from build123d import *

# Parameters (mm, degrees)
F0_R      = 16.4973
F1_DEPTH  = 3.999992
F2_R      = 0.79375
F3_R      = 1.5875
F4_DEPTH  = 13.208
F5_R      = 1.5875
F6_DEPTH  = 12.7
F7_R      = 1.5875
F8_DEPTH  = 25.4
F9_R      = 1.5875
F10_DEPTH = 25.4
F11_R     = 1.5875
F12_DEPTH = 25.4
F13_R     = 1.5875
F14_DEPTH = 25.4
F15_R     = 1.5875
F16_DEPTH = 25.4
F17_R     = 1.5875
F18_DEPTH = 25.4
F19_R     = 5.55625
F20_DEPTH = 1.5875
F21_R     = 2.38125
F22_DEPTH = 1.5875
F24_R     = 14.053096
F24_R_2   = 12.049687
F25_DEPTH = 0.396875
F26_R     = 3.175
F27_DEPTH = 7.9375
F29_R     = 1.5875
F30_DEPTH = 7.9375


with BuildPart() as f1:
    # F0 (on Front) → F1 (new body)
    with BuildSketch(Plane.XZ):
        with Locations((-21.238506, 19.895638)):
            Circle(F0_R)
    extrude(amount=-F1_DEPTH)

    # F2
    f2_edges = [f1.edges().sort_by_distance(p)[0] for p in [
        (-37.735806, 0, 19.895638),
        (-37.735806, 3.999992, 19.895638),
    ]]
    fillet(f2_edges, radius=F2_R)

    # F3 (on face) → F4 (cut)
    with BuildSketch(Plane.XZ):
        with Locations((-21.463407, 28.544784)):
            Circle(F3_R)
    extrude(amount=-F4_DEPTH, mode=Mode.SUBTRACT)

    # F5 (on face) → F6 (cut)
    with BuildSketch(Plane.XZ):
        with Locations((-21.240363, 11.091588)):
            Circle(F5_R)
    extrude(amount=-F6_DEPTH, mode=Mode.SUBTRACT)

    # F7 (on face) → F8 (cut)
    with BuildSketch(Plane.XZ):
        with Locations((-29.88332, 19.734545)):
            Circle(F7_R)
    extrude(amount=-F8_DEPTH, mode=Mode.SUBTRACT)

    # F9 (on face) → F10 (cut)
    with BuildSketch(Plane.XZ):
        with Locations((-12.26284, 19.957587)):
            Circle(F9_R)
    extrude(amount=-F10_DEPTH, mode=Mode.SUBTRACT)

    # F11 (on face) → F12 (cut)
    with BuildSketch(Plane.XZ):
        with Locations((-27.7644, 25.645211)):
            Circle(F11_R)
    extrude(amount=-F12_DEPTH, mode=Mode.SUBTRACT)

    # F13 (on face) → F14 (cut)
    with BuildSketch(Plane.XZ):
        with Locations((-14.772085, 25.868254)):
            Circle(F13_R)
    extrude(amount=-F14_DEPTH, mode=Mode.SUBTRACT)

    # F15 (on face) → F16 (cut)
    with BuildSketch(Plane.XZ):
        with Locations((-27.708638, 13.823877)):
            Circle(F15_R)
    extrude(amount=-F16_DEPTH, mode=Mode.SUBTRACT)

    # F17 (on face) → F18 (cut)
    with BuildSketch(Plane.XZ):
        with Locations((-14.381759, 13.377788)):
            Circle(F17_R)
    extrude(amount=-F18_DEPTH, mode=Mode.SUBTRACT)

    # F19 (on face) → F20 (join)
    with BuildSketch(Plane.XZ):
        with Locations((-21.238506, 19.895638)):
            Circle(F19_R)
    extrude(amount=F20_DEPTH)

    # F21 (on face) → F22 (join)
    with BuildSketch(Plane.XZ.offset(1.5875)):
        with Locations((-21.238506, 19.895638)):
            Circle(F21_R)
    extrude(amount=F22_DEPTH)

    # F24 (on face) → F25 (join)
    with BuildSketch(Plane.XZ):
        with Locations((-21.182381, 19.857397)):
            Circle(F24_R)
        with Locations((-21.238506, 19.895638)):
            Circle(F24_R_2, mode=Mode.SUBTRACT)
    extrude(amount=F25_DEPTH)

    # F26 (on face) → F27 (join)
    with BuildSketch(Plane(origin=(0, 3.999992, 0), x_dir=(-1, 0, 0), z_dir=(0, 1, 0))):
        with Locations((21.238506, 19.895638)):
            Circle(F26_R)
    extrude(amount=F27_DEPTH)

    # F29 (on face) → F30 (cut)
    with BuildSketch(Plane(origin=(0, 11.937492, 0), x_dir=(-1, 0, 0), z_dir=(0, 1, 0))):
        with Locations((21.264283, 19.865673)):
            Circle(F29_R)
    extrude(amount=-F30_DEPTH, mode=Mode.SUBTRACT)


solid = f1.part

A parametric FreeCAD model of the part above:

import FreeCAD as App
import Part
import Sketcher
from FreeCAD import Vector
Q = App.Units.Quantity


def edges_at(feature, points):
    """Names of the edges that pass closest to the given points."""
    edges = feature.Shape.Edges
    near = lambda p: min(range(len(edges)), key=lambda i: edges[i].distToShape(Part.Vertex(*p))[0])
    return sorted({f"Edge{near(p) + 1}" for p in points})

doc = App.newDocument("Part")
params = doc.addObject("Spreadsheet::Sheet", "Params")
for row, (alias, value) in enumerate([
    ("sketch1_diameter", "1.299 in"),
    ("pad1_length", "3.999992 mm"),
    ("fillet_radius", "0.03125 in"),
    ("sketch2_diameter", "0.125 in"),
    ("pocket1_length", "0.52 in"),
    ("sketch3_diameter", "0.125 in"),
    ("pocket2_length", "0.5 in"),
    ("sketch4_diameter", "0.125 in"),
    ("pocket3_length", "1 in"),
    ("sketch5_diameter", "0.125 in"),
    ("pocket4_length", "1 in"),
    ("sketch6_diameter", "0.125 in"),
    ("pocket5_length", "1 in"),
    ("sketch7_diameter", "0.125 in"),
    ("pocket6_length", "1 in"),
    ("sketch8_diameter", "0.125 in"),
    ("pocket7_length", "1 in"),
    ("sketch9_diameter", "0.125 in"),
    ("pocket8_length", "1 in"),
    ("sketch10_diameter", "0.4375 in"),
    ("pad2_length", "0.0625 in"),
    ("sketch11_diameter", "0.1875 in"),
    ("pad3_length", "0.0625 in"),
    ("pad4_length", "0.015625 in"),
    ("sketch13_diameter", "0.25 in"),
    ("pad5_length", "0.3125 in"),
    ("sketch14_diameter", "0.125 in"),
    ("pocket9_length", "0.3125 in"),
], start=1):
    params.set(f"A{row}", alias)
    params.set(f"B{row}", "=" + value)
    params.setAlias(f"B{row}", alias)

body = doc.addObject("PartDesign::Body", "Body")

# Sketch on XZ plane
sketch1 = body.newObject("Sketcher::SketchObject", "Sketch")
sketch1.AttachmentSupport = (doc.getObject("XZ_Plane"), [""])
sketch1.MapMode = "FlatFace"
sketch1.addGeometry(Part.Circle(Vector(-21, 20, 0), Vector(0, 0, 1), 16), False)
sketch1.addConstraint([
    Sketcher.Constraint("Diameter", 0, Q("1.299 in")),
    Sketcher.Constraint("DistanceY", -1, 1, 0, 3, 19.895638),
    Sketcher.Constraint("DistanceX", 0, 3, -1, 1, 21.238506),
])
sketch1.setExpression("Constraints[0]", "Params.sketch1_diameter")
pad1 = body.newObject("PartDesign::Pad", "Pad")
pad1.Profile = sketch1
pad1.setExpression("Length", "Params.pad1_length")
pad1.Reversed = True
doc.recompute()

fillet = body.newObject("PartDesign::Fillet", "Fillet")
fillet.Base = (pad1, edges_at(pad1, [(-37.736, 0, 19.896), (-37.736, 4, 19.896)]))
fillet.setExpression("Radius", "Params.fillet_radius")

# Sketch on XZ plane
sketch2 = body.newObject("Sketcher::SketchObject", "Sketch001")
sketch2.AttachmentSupport = (doc.getObject("XZ_Plane"), [""])
sketch2.MapMode = "FlatFace"
sketch2.addGeometry(Part.Circle(Vector(-21.5, 28.5, 0), Vector(0, 0, 1), 1.6), False)
sketch2.addConstraint([
    Sketcher.Constraint("Diameter", 0, Q("0.125 in")),
    Sketcher.Constraint("DistanceX", 0, 3, -1, 1, 21.463407),
    Sketcher.Constraint("DistanceY", -1, 1, 0, 3, 28.544784),
])
sketch2.setExpression("Constraints[0]", "Params.sketch2_diameter")
pocket1 = body.newObject("PartDesign::Pocket", "Pocket")
pocket1.Profile = sketch2
pocket1.setExpression("Length", "Params.pocket1_length")

# Sketch on XZ plane
sketch3 = body.newObject("Sketcher::SketchObject", "Sketch002")
sketch3.AttachmentSupport = (doc.getObject("XZ_Plane"), [""])
sketch3.MapMode = "FlatFace"
sketch3.addGeometry(Part.Circle(Vector(-21.2, 11.1, 0), Vector(0, 0, 1), 1.6), False)
sketch3.addConstraint([
    Sketcher.Constraint("Diameter", 0, Q("0.125 in")),
    Sketcher.Constraint("DistanceX", 0, 3, -1, 1, 21.240363),
    Sketcher.Constraint("DistanceY", -1, 1, 0, 3, 11.091588),
])
sketch3.setExpression("Constraints[0]", "Params.sketch3_diameter")
pocket2 = body.newObject("PartDesign::Pocket", "Pocket001")
pocket2.Profile = sketch3
pocket2.setExpression("Length", "Params.pocket2_length")

# Sketch on XZ plane
sketch4 = body.newObject("Sketcher::SketchObject", "Sketch003")
sketch4.AttachmentSupport = (doc.getObject("XZ_Plane"), [""])
sketch4.MapMode = "FlatFace"
sketch4.addGeometry(Part.Circle(Vector(-29.9, 19.7, 0), Vector(0, 0, 1), 1.6), False)
sketch4.addConstraint([
    Sketcher.Constraint("Diameter", 0, Q("0.125 in")),
    Sketcher.Constraint("DistanceX", 0, 3, -1, 1, 29.88332),
    Sketcher.Constraint("DistanceY", -1, 1, 0, 3, 19.734545),
])
sketch4.setExpression("Constraints[0]", "Params.sketch4_diameter")
pocket3 = body.newObject("PartDesign::Pocket", "Pocket002")
pocket3.Profile = sketch4
pocket3.setExpression("Length", "Params.pocket3_length")

# Sketch on XZ plane
sketch5 = body.newObject("Sketcher::SketchObject", "Sketch004")
sketch5.AttachmentSupport = (doc.getObject("XZ_Plane"), [""])
sketch5.MapMode = "FlatFace"
sketch5.addGeometry(Part.Circle(Vector(-12.3, 20, 0), Vector(0, 0, 1), 1.6), False)
sketch5.addConstraint([
    Sketcher.Constraint("Diameter", 0, Q("0.125 in")),
    Sketcher.Constraint("DistanceX", 0, 3, -1, 1, 12.26284),
    Sketcher.Constraint("DistanceY", -1, 1, 0, 3, 19.957587),
])
sketch5.setExpression("Constraints[0]", "Params.sketch5_diameter")
pocket4 = body.newObject("PartDesign::Pocket", "Pocket003")
pocket4.Profile = sketch5
pocket4.setExpression("Length", "Params.pocket4_length")

# Sketch on XZ plane
sketch6 = body.newObject("Sketcher::SketchObject", "Sketch005")
sketch6.AttachmentSupport = (doc.getObject("XZ_Plane"), [""])
sketch6.MapMode = "FlatFace"
sketch6.addGeometry(Part.Circle(Vector(-27.8, 25.6, 0), Vector(0, 0, 1), 1.6), False)
sketch6.addConstraint([
    Sketcher.Constraint("Diameter", 0, Q("0.125 in")),
    Sketcher.Constraint("DistanceX", 0, 3, -1, 1, 27.7644),
    Sketcher.Constraint("DistanceY", -1, 1, 0, 3, 25.645211),
])
sketch6.setExpression("Constraints[0]", "Params.sketch6_diameter")
pocket5 = body.newObject("PartDesign::Pocket", "Pocket004")
pocket5.Profile = sketch6
pocket5.setExpression("Length", "Params.pocket5_length")

# Sketch on XZ plane
sketch7 = body.newObject("Sketcher::SketchObject", "Sketch006")
sketch7.AttachmentSupport = (doc.getObject("XZ_Plane"), [""])
sketch7.MapMode = "FlatFace"
sketch7.addGeometry(Part.Circle(Vector(-14.8, 25.9, 0), Vector(0, 0, 1), 1.6), False)
sketch7.addConstraint([
    Sketcher.Constraint("Diameter", 0, Q("0.125 in")),
    Sketcher.Constraint("DistanceX", 0, 3, -1, 1, 14.772085),
    Sketcher.Constraint("DistanceY", -1, 1, 0, 3, 25.868254),
])
sketch7.setExpression("Constraints[0]", "Params.sketch7_diameter")
pocket6 = body.newObject("PartDesign::Pocket", "Pocket005")
pocket6.Profile = sketch7
pocket6.setExpression("Length", "Params.pocket6_length")

# Sketch on XZ plane
sketch8 = body.newObject("Sketcher::SketchObject", "Sketch007")
sketch8.AttachmentSupport = (doc.getObject("XZ_Plane"), [""])
sketch8.MapMode = "FlatFace"
sketch8.addGeometry(Part.Circle(Vector(-27.7, 13.8, 0), Vector(0, 0, 1), 1.6), False)
sketch8.addConstraint([
    Sketcher.Constraint("Diameter", 0, Q("0.125 in")),
    Sketcher.Constraint("DistanceX", 0, 3, -1, 1, 27.708638),
    Sketcher.Constraint("DistanceY", -1, 1, 0, 3, 13.823877),
])
sketch8.setExpression("Constraints[0]", "Params.sketch8_diameter")
pocket7 = body.newObject("PartDesign::Pocket", "Pocket006")
pocket7.Profile = sketch8
pocket7.setExpression("Length", "Params.pocket7_length")

# Sketch on XZ plane
sketch9 = body.newObject("Sketcher::SketchObject", "Sketch008")
sketch9.AttachmentSupport = (doc.getObject("XZ_Plane"), [""])
sketch9.MapMode = "FlatFace"
sketch9.addGeometry(Part.Circle(Vector(-14.4, 13.4, 0), Vector(0, 0, 1), 1.6), False)
sketch9.addConstraint([
    Sketcher.Constraint("Diameter", 0, Q("0.125 in")),
    Sketcher.Constraint("DistanceX", 0, 3, -1, 1, 14.381759),
    Sketcher.Constraint("DistanceY", -1, 1, 0, 3, 13.377788),
])
sketch9.setExpression("Constraints[0]", "Params.sketch9_diameter")
pocket8 = body.newObject("PartDesign::Pocket", "Pocket007")
pocket8.Profile = sketch9
pocket8.setExpression("Length", "Params.pocket8_length")

# Sketch on XZ plane
sketch10 = body.newObject("Sketcher::SketchObject", "Sketch009")
sketch10.AttachmentSupport = (doc.getObject("XZ_Plane"), [""])
sketch10.MapMode = "FlatFace"
sketch10.addGeometry(Part.Circle(Vector(-21, 20, 0), Vector(0, 0, 1), 6), False)
sketch10.addConstraint([
    Sketcher.Constraint("Diameter", 0, Q("0.4375 in")),
    Sketcher.Constraint("DistanceY", -1, 1, 0, 3, 19.895638),
    Sketcher.Constraint("DistanceX", 0, 3, -1, 1, 21.238506),
])
sketch10.setExpression("Constraints[0]", "Params.sketch10_diameter")
pad2 = body.newObject("PartDesign::Pad", "Pad001")
pad2.Profile = sketch10
pad2.setExpression("Length", "Params.pad2_length")

# Sketch on XZ plane
sketch11 = body.newObject("Sketcher::SketchObject", "Sketch010")
sketch11.AttachmentSupport = (doc.getObject("XZ_Plane"), [""])
sketch11.MapMode = "FlatFace"
sketch11.AttachmentOffset = App.Placement(Vector(0, 0, 0.0625 * 25.4), App.Rotation())
sketch11.addGeometry(Part.Circle(Vector(-21.2, 19.9, 0), Vector(0, 0, 1), 2.4), False)
sketch11.addConstraint([
    Sketcher.Constraint("Diameter", 0, Q("0.1875 in")),
    Sketcher.Constraint("DistanceY", -1, 1, 0, 3, 19.895638),
    Sketcher.Constraint("DistanceX", 0, 3, -1, 1, 21.238506),
])
sketch11.setExpression("Constraints[0]", "Params.sketch11_diameter")
pad3 = body.newObject("PartDesign::Pad", "Pad002")
pad3.Profile = sketch11
pad3.setExpression("Length", "Params.pad3_length")

# Sketch on XZ plane
sketch12 = body.newObject("Sketcher::SketchObject", "Sketch011")
sketch12.AttachmentSupport = (doc.getObject("XZ_Plane"), [""])
sketch12.MapMode = "FlatFace"
sketch12.addGeometry([
    Part.Circle(Vector(-21, 20, 0), Vector(0, 0, 1), 14),
    Part.Circle(Vector(-21, 20, 0), Vector(0, 0, 1), 12),
], False)
sketch12.addConstraint([
    Sketcher.Constraint("Diameter", 0, 28.106192),
    Sketcher.Constraint("Diameter", 1, 24.099374),
    Sketcher.Constraint("DistanceX", 0, 3, -1, 1, 21.182381),
    Sketcher.Constraint("DistanceY", -1, 1, 1, 3, 19.895638),
    Sketcher.Constraint("DistanceY", 0, 3, 1, 3, 0.038241),
    Sketcher.Constraint("DistanceX", 1, 3, -1, 1, 21.238506),
])
pad4 = body.newObject("PartDesign::Pad", "Pad003")
pad4.Profile = sketch12
pad4.setExpression("Length", "Params.pad4_length")

# Sketch on XZ plane
sketch13 = body.newObject("Sketcher::SketchObject", "Sketch012")
sketch13.AttachmentSupport = (doc.getObject("XZ_Plane"), [""])
sketch13.MapMode = "FlatFace"
sketch13.AttachmentOffset = App.Placement(Vector(0, 0, -3.999992), App.Rotation())
sketch13.addGeometry(Part.Circle(Vector(-21.2, 19.9, 0), Vector(0, 0, 1), 3.2), False)
sketch13.addConstraint([
    Sketcher.Constraint("Diameter", 0, Q("0.25 in")),
    Sketcher.Constraint("DistanceY", -1, 1, 0, 3, 19.895638),
    Sketcher.Constraint("DistanceX", 0, 3, -1, 1, 21.238506),
])
sketch13.setExpression("Constraints[0]", "Params.sketch13_diameter")
pad5 = body.newObject("PartDesign::Pad", "Pad004")
pad5.Profile = sketch13
pad5.setExpression("Length", "Params.pad5_length")
pad5.Reversed = True

# Sketch on XZ plane
sketch14 = body.newObject("Sketcher::SketchObject", "Sketch013")
sketch14.AttachmentSupport = (doc.getObject("XZ_Plane"), [""])
sketch14.MapMode = "FlatFace"
sketch14.AttachmentOffset = App.Placement(Vector(0, 0, -11.937492), App.Rotation())
sketch14.addGeometry(Part.Circle(Vector(-21.3, 19.9, 0), Vector(0, 0, 1), 1.6), False)
sketch14.addConstraint([
    Sketcher.Constraint("Diameter", 0, Q("0.125 in")),
    Sketcher.Constraint("DistanceX", 0, 3, -1, 1, 21.264283),
    Sketcher.Constraint("DistanceY", -1, 1, 0, 3, 19.865673),
])
sketch14.setExpression("Constraints[0]", "Params.sketch14_diameter")
pocket9 = body.newObject("PartDesign::Pocket", "Pocket008")
pocket9.Profile = sketch14
pocket9.setExpression("Length", "Params.pocket9_length")
pocket9.Reversed = True

doc.recompute()
